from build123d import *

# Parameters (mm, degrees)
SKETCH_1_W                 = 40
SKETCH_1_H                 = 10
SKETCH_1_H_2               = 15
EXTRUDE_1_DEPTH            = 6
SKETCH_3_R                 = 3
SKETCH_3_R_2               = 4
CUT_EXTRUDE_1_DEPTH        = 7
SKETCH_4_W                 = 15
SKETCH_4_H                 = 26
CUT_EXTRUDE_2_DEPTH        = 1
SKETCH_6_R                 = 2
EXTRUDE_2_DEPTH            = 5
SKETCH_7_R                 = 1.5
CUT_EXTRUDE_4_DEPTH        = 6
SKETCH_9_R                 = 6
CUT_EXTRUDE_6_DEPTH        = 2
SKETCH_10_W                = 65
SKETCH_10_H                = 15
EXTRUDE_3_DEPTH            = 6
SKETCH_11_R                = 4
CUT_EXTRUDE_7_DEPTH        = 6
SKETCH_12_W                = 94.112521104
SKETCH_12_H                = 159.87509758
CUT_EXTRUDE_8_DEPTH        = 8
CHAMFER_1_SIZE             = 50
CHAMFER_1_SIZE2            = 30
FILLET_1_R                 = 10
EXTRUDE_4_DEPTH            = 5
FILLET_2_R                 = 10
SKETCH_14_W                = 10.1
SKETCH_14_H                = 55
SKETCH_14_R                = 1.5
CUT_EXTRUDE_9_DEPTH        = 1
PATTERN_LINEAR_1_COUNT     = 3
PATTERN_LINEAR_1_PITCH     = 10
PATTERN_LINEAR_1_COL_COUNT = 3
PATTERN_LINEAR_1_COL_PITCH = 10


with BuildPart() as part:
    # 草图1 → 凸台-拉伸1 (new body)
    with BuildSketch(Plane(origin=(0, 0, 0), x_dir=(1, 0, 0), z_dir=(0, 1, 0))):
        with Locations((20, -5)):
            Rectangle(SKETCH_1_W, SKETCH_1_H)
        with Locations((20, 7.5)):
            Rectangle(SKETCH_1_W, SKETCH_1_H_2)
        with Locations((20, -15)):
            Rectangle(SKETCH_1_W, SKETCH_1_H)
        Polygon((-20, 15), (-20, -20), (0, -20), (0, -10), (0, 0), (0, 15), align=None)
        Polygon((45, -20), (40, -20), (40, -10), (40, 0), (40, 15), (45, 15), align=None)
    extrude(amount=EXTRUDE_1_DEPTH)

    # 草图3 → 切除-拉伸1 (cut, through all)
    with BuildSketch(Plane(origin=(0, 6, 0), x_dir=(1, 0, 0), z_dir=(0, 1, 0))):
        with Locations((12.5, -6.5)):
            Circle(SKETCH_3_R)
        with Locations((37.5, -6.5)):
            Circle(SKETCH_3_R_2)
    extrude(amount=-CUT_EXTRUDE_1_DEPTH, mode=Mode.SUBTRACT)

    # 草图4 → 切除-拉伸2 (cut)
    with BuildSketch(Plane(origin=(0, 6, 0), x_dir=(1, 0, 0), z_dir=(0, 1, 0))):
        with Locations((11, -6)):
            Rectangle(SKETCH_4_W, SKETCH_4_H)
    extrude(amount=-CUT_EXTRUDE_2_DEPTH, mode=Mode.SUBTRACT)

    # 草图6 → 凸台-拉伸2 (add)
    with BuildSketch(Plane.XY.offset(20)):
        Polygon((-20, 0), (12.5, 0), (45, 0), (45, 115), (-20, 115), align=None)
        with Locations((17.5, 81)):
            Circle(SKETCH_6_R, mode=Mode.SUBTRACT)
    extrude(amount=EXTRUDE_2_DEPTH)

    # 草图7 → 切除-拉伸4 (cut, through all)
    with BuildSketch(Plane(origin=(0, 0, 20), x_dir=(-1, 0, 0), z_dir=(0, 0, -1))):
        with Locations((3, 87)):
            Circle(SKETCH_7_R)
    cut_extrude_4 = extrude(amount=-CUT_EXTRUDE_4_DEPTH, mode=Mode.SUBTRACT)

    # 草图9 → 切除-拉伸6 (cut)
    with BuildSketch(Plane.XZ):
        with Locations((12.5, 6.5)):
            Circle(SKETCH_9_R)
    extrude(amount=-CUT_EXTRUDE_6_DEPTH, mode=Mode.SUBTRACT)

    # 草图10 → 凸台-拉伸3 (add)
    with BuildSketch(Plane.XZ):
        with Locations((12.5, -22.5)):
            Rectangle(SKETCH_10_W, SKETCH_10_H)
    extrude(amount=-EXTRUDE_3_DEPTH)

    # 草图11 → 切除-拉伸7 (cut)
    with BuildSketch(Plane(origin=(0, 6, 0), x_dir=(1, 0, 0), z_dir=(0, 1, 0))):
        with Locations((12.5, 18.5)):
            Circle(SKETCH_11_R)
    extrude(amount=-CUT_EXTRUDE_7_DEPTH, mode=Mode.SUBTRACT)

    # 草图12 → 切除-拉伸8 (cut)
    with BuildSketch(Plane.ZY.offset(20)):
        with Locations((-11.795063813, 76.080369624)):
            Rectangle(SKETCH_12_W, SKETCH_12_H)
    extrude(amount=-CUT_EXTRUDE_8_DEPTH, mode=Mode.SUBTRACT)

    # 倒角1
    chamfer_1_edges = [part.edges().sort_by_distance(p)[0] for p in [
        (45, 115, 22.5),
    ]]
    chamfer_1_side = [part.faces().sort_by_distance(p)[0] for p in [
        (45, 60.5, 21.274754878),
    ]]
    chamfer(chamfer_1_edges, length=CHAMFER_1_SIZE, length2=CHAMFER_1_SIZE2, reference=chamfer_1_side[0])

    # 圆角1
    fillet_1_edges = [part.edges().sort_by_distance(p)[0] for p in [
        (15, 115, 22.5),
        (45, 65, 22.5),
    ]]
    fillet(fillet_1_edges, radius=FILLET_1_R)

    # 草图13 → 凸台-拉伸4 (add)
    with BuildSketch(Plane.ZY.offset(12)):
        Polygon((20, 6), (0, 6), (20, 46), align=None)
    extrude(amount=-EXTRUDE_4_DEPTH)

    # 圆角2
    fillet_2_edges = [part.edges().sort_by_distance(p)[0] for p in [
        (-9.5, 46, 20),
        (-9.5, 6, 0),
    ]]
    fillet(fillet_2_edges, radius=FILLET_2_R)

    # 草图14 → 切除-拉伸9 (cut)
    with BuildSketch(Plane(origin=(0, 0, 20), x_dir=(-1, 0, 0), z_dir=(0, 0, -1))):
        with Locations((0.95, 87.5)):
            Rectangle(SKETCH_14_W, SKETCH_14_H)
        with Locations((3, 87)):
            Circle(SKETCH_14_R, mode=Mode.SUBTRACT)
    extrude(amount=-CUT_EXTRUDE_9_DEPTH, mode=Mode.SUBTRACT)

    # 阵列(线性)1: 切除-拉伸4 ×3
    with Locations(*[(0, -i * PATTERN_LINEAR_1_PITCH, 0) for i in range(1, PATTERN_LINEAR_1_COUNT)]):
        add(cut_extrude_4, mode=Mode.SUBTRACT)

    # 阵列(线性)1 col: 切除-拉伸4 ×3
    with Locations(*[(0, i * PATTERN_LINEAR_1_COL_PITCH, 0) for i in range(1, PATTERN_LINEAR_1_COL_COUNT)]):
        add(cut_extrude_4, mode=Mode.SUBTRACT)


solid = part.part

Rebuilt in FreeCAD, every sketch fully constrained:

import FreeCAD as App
import Part
import Sketcher

V = App.Vector


def edges_at(feature, points):
    """Names of the edges that pass closest to the given points."""
    edges = feature.Shape.Edges
    near = lambda p: min(range(len(edges)), key=lambda i: edges[i].distToShape(Part.Vertex(*p))[0])
    return sorted({f"Edge{near(p) + 1}" for p in points})


def add_polygon(sketch, points):
    """Adds a closed chain of lines whose ends are joined by coincident constraints."""
    first, n = sketch.GeometryCount, len(points)
    for a, b in zip(points, points[1:] + points[:1]):
        sketch.addGeometry(Part.LineSegment(App.Vector(*a, 0), App.Vector(*b, 0)), False)
    for i in range(n):
        sketch.addConstraint(Sketcher.Constraint("Coincident", first + i, 2, first + (i + 1) % n, 1))

doc = App.newDocument("Part")
params = doc.addObject("Spreadsheet::Sheet", "Params")
for row, (alias, value) in enumerate([
    ("sketch1_width", "65 mm"),
    ("sketch1_height", "35 mm"),
    ("pad1_length", "6 mm"),
    ("sketch2_diameter", "6 mm"),
    ("sketch2_diameter2", "8 mm"),
    ("sketch3_width", "15 mm"),
    ("sketch3_height", "26 mm"),
    ("pocket2_length", "1 mm"),
    ("sketch4_diameter", "4 mm"),
    ("sketch4_width", "65 mm"),
    ("sketch4_height", "115 mm"),
    ("pad2_length", "5 mm"),
    ("sketch5_diameter", "3 mm"),
    ("sketch6_diameter", "12 mm"),
    ("pocket4_length", "2 mm"),
    ("sketch7_width", "65 mm"),
    ("sketch7_height", "15 mm"),
    ("pad3_length", "6 mm"),
    ("sketch8_diameter", "8 mm"),
    ("pocket5_length", "6 mm"),
    ("pocket6_length", "8 mm"),
    ("chamfer_size", "50 mm"),
    ("chamfer_size2", "30 mm"),
    ("fillet_radius", "10 mm"),
    ("sketch10_width", "40 mm"),
    ("sketch10_height", "20 mm"),
    ("pad4_length", "5 mm"),
    ("fillet2_radius", "10 mm"),
    ("sketch11_diameter", "3 mm"),
    ("sketch11_height", "55 mm"),
    ("sketch11_width", "10.1 mm"),
    ("pocket7_length", "1 mm"),
    ("linearpattern_pitch", "10 mm"),
    ("linearpattern2_pitch", "10 mm"),
], start=1):
    params.set(f"A{row}", alias)
    params.set(f"B{row}", "=" + value)
    params.setAlias(f"B{row}", alias)

body = doc.addObject("PartDesign::Body", "Body")

# Sketch on XZ plane
sketch1 = body.newObject("Sketcher::SketchObject", "Sketch")
sketch1.AttachmentSupport = (doc.getObject("XZ_Plane"), [""])
sketch1.MapMode = "FlatFace"
add_polygon(sketch1, [(-20, -15), (-20, 20), (45, 20), (45, -15)])  # lines 0-3
sketch1.addConstraint(Sketcher.Constraint("Vertical", 0))
sketch1.addConstraint(Sketcher.Constraint("Horizontal", 1))
sketch1.addConstraint(Sketcher.Constraint("Vertical", 2))
sketch1.addConstraint(Sketcher.Constraint("Horizontal", 3))
sketch1.addConstraint(Sketcher.Constraint("DistanceX", 1, 1, 1, 2, 65.0))
sketch1.addConstraint(Sketcher.Constraint("DistanceY", 0, 1, 0, 2, 35.0))
sketch1.addConstraint(Sketcher.Constraint("DistanceX", 0, 2, -1, 1, 20.0))
sketch1.addConstraint(Sketcher.Constraint("DistanceY", -1, 1, 0, 2, 20.0))
sketch1.setExpression("Constraints[8]", "Params.sketch1_width")
sketch1.setExpression("Constraints[9]", "Params.sketch1_height")
pad1 = body.newObject("PartDesign::Pad", "Pad")
pad1.Profile = sketch1
pad1.setExpression("Length", "Params.pad1_length")
pad1.Reversed = True

# Sketch on XZ plane
sketch2 = body.newObject("Sketcher::SketchObject", "Sketch001")
sketch2.AttachmentSupport = (doc.getObject("XZ_Plane"), [""])
sketch2.MapMode = "FlatFace"
sketch2.AttachmentOffset = App.Placement(V(0, 0, -6), App.Rotation())
sketch2.addGeometry(Part.Circle(V(12.5, 6.5, 0), V(0, 0, 1), 3), False)
sketch2.addGeometry(Part.Circle(V(37.5, 6.5, 0), V(0, 0, 1), 4), False)
sketch2.addConstraint(Sketcher.Constraint("Horizontal", 0, 3, 1, 3))
sketch2.addConstraint(Sketcher.Constraint("Diameter", 0, 6.0))
sketch2.addConstraint(Sketcher.Constraint("Diameter", 1, 8.0))
sketch2.addConstraint(Sketcher.Constraint("DistanceX", 0, 3, 1, 3, 25.0))
sketch2.addConstraint(Sketcher.Constraint("DistanceX", -1, 1, 0, 3, 12.5))
sketch2.addConstraint(Sketcher.Constraint("DistanceY", -1, 1, 0, 3, 6.5))
sketch2.setExpression("Constraints[1]", "Params.sketch2_diameter")
sketch2.setExpression("Constraints[2]", "Params.sketch2_diameter2")
pocket1 = body.newObject("PartDesign::Pocket", "Pocket")
pocket1.Profile = sketch2
pocket1.Type = "ThroughAll"
pocket1.Reversed = True

# Sketch on XZ plane
sketch3 = body.newObject("Sketcher::SketchObject", "Sketch002")
sketch3.AttachmentSupport = (doc.getObject("XZ_Plane"), [""])
sketch3.MapMode = "FlatFace"
sketch3.AttachmentOffset = App.Placement(V(0, 0, -6), App.Rotation())
add_polygon(sketch3, [(4, -7), (4, 19), (18, 19), (18, -7)])  # lines 0-3
sketch3.addConstraint(Sketcher.Constraint("Vertical", 0))
sketch3.addConstraint(Sketcher.Constraint("Horizontal", 1))
sketch3.addConstraint(Sketcher.Constraint("Vertical", 2))
sketch3.addConstraint(Sketcher.Constraint("Horizontal", 3))
sketch3.addConstraint(Sketcher.Constraint("DistanceX", 1, 1, 1, 2, 15.0))
sketch3.addConstraint(Sketcher.Constraint("DistanceY", 0, 1, 0, 2, 26.0))
sketch3.addConstraint(Sketcher.Constraint("DistanceY", -1, 1, 0, 2, 19.0))
sketch3.addConstraint(Sketcher.Constraint("DistanceX", -1, 1, 0, 2, 3.5))
sketch3.setExpression("Constraints[8]", "Params.sketch3_width")
sketch3.setExpression("Constraints[9]", "Params.sketch3_height")
pocket2 = body.newObject("PartDesign::Pocket", "Pocket001")
pocket2.Profile = sketch3
pocket2.setExpression("Length", "Params.pocket2_length")
pocket2.Reversed = True

# Sketch on XY plane
sketch4 = body.newObject("Sketcher::SketchObject", "Sketch003")
sketch4.AttachmentSupport = (doc.getObject("XY_Plane"), [""])
sketch4.MapMode = "FlatFace"
sketch4.AttachmentOffset = App.Placement(V(0, 0, 20), App.Rotation())
add_polygon(sketch4, [(-20, 0), (45, 0), (45, 115), (-20, 115)])  # lines 0-3
sketch4.addGeometry(Part.Circle(V(17.5, 81, 0), V(0, 0, 1), 2), False)  # 4
sketch4.addConstraint(Sketcher.Constraint("Horizontal", 0))
sketch4.addConstraint(Sketcher.Constraint("Vertical", 1))
sketch4.addConstraint(Sketcher.Constraint("Horizontal", 2))
sketch4.addConstraint(Sketcher.Constraint("Vertical", 3))
sketch4.addConstraint(Sketcher.Constraint("PointOnObject", 0, 2, -1))
sketch4.addConstraint(Sketcher.Constraint("Diameter", 4, 4.0))
sketch4.addConstraint(Sketcher.Constraint("DistanceX", 0, 1, 0, 2, 65.0))
sketch4.addConstraint(Sketcher.Constraint("DistanceY", 1, 1, 1, 2, 115.0))
sketch4.addConstraint(Sketcher.Constraint("DistanceY", -1, 1, 4, 3, 81.0))
sketch4.addConstraint(Sketcher.Constraint("DistanceX", -1, 1, 0, 2, 45.0))
sketch4.addConstraint(Sketcher.Constraint("DistanceX", -1, 1, 4, 3, 17.5))
sketch4.setExpression("Constraints[9]", "Params.sketch4_diameter")
sketch4.setExpression("Constraints[10]", "Params.sketch4_width")
sketch4.setExpression("Constraints[11]", "Params.sketch4_height")
pad2 = body.newObject("PartDesign::Pad", "Pad001")
pad2.Profile = sketch4
pad2.setExpression("Length", "Params.pad2_length")

# Sketch on XY plane
sketch5 = body.newObject("Sketcher::SketchObject", "Sketch004")
sketch5.AttachmentSupport = (doc.getObject("XY_Plane"), [""])
sketch5.MapMode = "FlatFace"
sketch5.AttachmentOffset = App.Placement(V(0, 0, 20), App.Rotation())
sketch5.addGeometry(Part.Circle(V(-3, 87, 0), V(0, 0, 1), 1.5), False)
sketch5.addConstraint(Sketcher.Constraint("Diameter", 0, 3.0))
sketch5.addConstraint(Sketcher.Constraint("DistanceX", 0, 3, -1, 1, 3.0))
sketch5.addConstraint(Sketcher.Constraint("DistanceY", -1, 1, 0, 3, 87.0))
sketch5.setExpression("Constraints[0]", "Params.sketch5_diameter")
pocket3 = body.newObject("PartDesign::Pocket", "Pocket002")
pocket3.Profile = sketch5
pocket3.Type = "ThroughAll"
pocket3.Reversed = True

# Sketch on XZ plane
sketch6 = body.newObject("Sketcher::SketchObject", "Sketch005")
sketch6.AttachmentSupport = (doc.getObject("XZ_Plane"), [""])
sketch6.MapMode = "FlatFace"
sketch6.addGeometry(Part.Circle(V(12, 6, 0), V(0, 0, 1), 6), False)
sketch6.addConstraint(Sketcher.Constraint("Diameter", 0, 12.0))
sketch6.addConstraint(Sketcher.Constraint("DistanceX", -1, 1, 0, 3, 12.5))
sketch6.addConstraint(Sketcher.Constraint("DistanceY", -1, 1, 0, 3, 6.5))
sketch6.setExpression("Constraints[0]", "Params.sketch6_diameter")
pocket4 = body.newObject("PartDesign::Pocket", "Pocket003")
pocket4.Profile = sketch6
pocket4.setExpression("Length", "Params.pocket4_length")

# Sketch on XZ plane
sketch7 = body.newObject("Sketcher::SketchObject", "Sketch006")
sketch7.AttachmentSupport = (doc.getObject("XZ_Plane"), [""])
sketch7.MapMode = "FlatFace"
add_polygon(sketch7, [(-20, -15), (-20, -30), (45, -30), (45, -15)])  # lines 0-3
sketch7.addConstraint(Sketcher.Constraint("Vertical", 0))
sketch7.addConstraint(Sketcher.Constraint("Horizontal", 1))
sketch7.addConstraint(Sketcher.Constraint("Vertical", 2))
sketch7.addConstraint(Sketcher.Constraint("Horizontal", 3))
sketch7.addConstraint(Sketcher.Constraint("DistanceX", 1, 1, 1, 2, 65.0))
sketch7.addConstraint(Sketcher.Constraint("DistanceY", 0, 2, 0, 1, 15.0))
sketch7.addConstraint(Sketcher.Constraint("DistanceX", 0, 2, -1, 1, 20.0))
sketch7.addConstraint(Sketcher.Constraint("DistanceY", 0, 2, -1, 1, 30.0))
sketch7.setExpression("Constraints[8]", "Params.sketch7_width")
sketch7.setExpression("Constraints[9]", "Params.sketch7_height")
pad3 = body.newObject("PartDesign::Pad", "Pad002")
pad3.Profile = sketch7
pad3.setExpression("Length", "Params.pad3_length")
pad3.Reversed = True

# Sketch on XZ plane
sketch8 = body.newObject("Sketcher::SketchObject", "Sketch007")
sketch8.AttachmentSupport = (doc.getObject("XZ_Plane"), [""])
sketch8.MapMode = "FlatFace"
sketch8.AttachmentOffset = App.Placement(V(0, 0, -6), App.Rotation())
sketch8.addGeometry(Part.Circle(V(12.5, -18.5, 0), V(0, 0, 1), 4), False)
sketch8.addConstraint(Sketcher.Constraint("Diameter", 0, 8.0))
sketch8.addConstraint(Sketcher.Constraint("DistanceX", -1, 1, 0, 3, 12.5))
sketch8.addConstraint(Sketcher.Constraint("DistanceY", 0, 3, -1, 1, 18.5))
sketch8.setExpression("Constraints[0]", "Params.sketch8_diameter")
pocket5 = body.newObject("PartDesign::Pocket", "Pocket004")
pocket5.Profile = sketch8
pocket5.setExpression("Length", "Params.pocket5_length")
pocket5.Reversed = True

# Sketch on YZ plane
sketch9 = body.newObject("Sketcher::SketchObject", "Sketch008")
sketch9.AttachmentSupport = (doc.getObject("YZ_Plane"), [""])
sketch9.MapMode = "FlatFace"
sketch9.AttachmentOffset = App.Placement(V(0, 0, -20), App.Rotation())
add_polygon(sketch9, [(156, -59), (-4, -59), (-4, 35), (156, 35)])  # lines 0-3
sketch9.addConstraint(Sketcher.Constraint("Horizontal", 0))
sketch9.addConstraint(Sketcher.Constraint("Vertical", 1))
sketch9.addConstraint(Sketcher.Constraint("Horizontal", 2))
sketch9.addConstraint(Sketcher.Constraint("Vertical", 3))
sketch9.addConstraint(Sketcher.Constraint("DistanceY", 1, 1, 1, 2, 94.112521))
sketch9.addConstraint(Sketcher.Constraint("DistanceX", 0, 2, 0, 1, 159.875098))
sketch9.addConstraint(Sketcher.Constraint("DistanceX", 0, 2, -1, 1, 3.857179))
sketch9.addConstraint(Sketcher.Constraint("DistanceY", 0, 2, -1, 1, 58.851324))
pocket6 = body.newObject("PartDesign::Pocket", "Pocket005")
pocket6.Profile = sketch9
pocket6.setExpression("Length", "Params.pocket6_length")
pocket6.Reversed = True
doc.recompute()

chamfer = body.newObject("PartDesign::Chamfer", "Chamfer")
chamfer.Base = (pocket6, edges_at(pocket6, [(45, 115, 22.5)]))
chamfer.ChamferType = "Two distances"
chamfer.setExpression("Size", "Params.chamfer_size")
chamfer.setExpression("Size2", "Params.chamfer_size2")
chamfer.FlipDirection = True
doc.recompute()

fillet = body.newObject("PartDesign::Fillet", "Fillet")
fillet.Base = (chamfer, edges_at(chamfer, [(15, 115, 22.5), (45, 65, 22.5)]))
fillet.setExpression("Radius", "Params.fillet_radius")

# Sketch on YZ plane
sketch10 = body.newObject("Sketcher::SketchObject", "Sketch009")
sketch10.AttachmentSupport = (doc.getObject("YZ_Plane"), [""])
sketch10.MapMode = "FlatFace"
sketch10.AttachmentOffset = App.Placement(V(0, 0, -12), App.Rotation())
add_polygon(sketch10, [(6, 0), (6, 20), (46, 20)])  # lines 0-2
sketch10.addConstraint(Sketcher.Constraint("Vertical", 0))
sketch10.addConstraint(Sketcher.Constraint("Horizontal", 1))
sketch10.addConstraint(Sketcher.Constraint("PointOnObject", 2, 2, -1))
sketch10.addConstraint(Sketcher.Constraint("DistanceX", 1, 1, 1, 2, 40.0))
sketch10.addConstraint(Sketcher.Constraint("DistanceY", 0, 1, 0, 2, 20.0))
sketch10.addConstraint(Sketcher.Constraint("DistanceX", -1, 1, 0, 2, 6.0))
sketch10.setExpression("Constraints[6]", "Params.sketch10_width")
sketch10.setExpression("Constraints[7]", "Params.sketch10_height")
pad4 = body.newObject("PartDesign::Pad", "Pad003")
pad4.Profile = sketch10
pad4.setExpression("Length", "Params.pad4_length")
doc.recompute()

fillet2 = body.newObject("PartDesign::Fillet", "Fillet001")
fillet2.Base = (pad4, edges_at(pad4, [(-9.5, 46, 20), (-9.5, 6, 0)]))
fillet2.setExpression("Radius", "Params.fillet2_radius")

# Sketch on XY plane
sketch11 = body.newObject("Sketcher::SketchObject", "Sketch010")
sketch11.AttachmentSupport = (doc.getObject("XY_Plane"), [""])
sketch11.MapMode = "FlatFace"
sketch11.AttachmentOffset = App.Placement(V(0, 0, 20), App.Rotation())
add_polygon(sketch11, [(4.1, 115), (4.1, 60), (-6, 60), (-6, 115)])  # lines 0-3
sketch11.addGeometry(Part.Circle(V(-3, 87, 0), V(0, 0, 1), 1.5), False)  # 4
sketch11.addConstraint(Sketcher.Constraint("Vertical", 0))
sketch11.addConstraint(Sketcher.Constraint("Horizontal", 1))
sketch11.addConstraint(Sketcher.Constraint("Vertical", 2))
sketch11.addConstraint(Sketcher.Constraint("Horizontal", 3))
sketch11.addConstraint(Sketcher.Constraint("Diameter", 4, 3.0))
sketch11.addConstraint(Sketcher.Constraint("DistanceY", 0, 2, 0, 1, 55.0))
sketch11.addConstraint(Sketcher.Constraint("DistanceX", 1, 2, 1, 1, 10.1))
sketch11.addConstraint(Sketcher.Constraint("DistanceX", 4, 3, -1, 1, 3.0))
sketch11.addConstraint(Sketcher.Constraint("DistanceY", -1, 1, 4, 3, 87.0))
sketch11.addConstraint(Sketcher.Constraint("DistanceY", -1, 1, 0, 2, 60.0))
sketch11.addConstraint(Sketcher.Constraint("DistanceX", 1, 2, -1, 1, 6.0))
sketch11.setExpression("Constraints[8]", "Params.sketch11_diameter")
sketch11.setExpression("Constraints[9]", "Params.sketch11_height")
sketch11.setExpression("Constraints[10]", "Params.sketch11_width")
pocket7 = body.newObject("PartDesign::Pocket", "Pocket006")
pocket7.Profile = sketch11
pocket7.setExpression("Length", "Params.pocket7_length")
pocket7.Reversed = True
doc.recompute()

linearpattern = body.newObject("PartDesign::LinearPattern", "LinearPattern")
linearpattern.Originals = [pocket3]
linearpattern.Direction = (doc.getObject("Y_Axis"), [""])
linearpattern.Mode = "offset"
linearpattern.setExpression("Offset", "Params.linearpattern_pitch")
linearpattern.Occurrences = 3
linearpattern.Reversed = True
body.Tip = linearpattern
doc.recompute()

linearpattern2 = body.newObject("PartDesign::LinearPattern", "LinearPattern001")
linearpattern2.Originals = [pocket3]
linearpattern2.Direction = (doc.getObject("Y_Axis"), [""])
linearpattern2.Mode = "offset"
linearpattern2.setExpression("Offset", "Params.linearpattern2_pitch")
linearpattern2.Occurrences = 3
body.Tip = linearpattern2

doc.recompute()
